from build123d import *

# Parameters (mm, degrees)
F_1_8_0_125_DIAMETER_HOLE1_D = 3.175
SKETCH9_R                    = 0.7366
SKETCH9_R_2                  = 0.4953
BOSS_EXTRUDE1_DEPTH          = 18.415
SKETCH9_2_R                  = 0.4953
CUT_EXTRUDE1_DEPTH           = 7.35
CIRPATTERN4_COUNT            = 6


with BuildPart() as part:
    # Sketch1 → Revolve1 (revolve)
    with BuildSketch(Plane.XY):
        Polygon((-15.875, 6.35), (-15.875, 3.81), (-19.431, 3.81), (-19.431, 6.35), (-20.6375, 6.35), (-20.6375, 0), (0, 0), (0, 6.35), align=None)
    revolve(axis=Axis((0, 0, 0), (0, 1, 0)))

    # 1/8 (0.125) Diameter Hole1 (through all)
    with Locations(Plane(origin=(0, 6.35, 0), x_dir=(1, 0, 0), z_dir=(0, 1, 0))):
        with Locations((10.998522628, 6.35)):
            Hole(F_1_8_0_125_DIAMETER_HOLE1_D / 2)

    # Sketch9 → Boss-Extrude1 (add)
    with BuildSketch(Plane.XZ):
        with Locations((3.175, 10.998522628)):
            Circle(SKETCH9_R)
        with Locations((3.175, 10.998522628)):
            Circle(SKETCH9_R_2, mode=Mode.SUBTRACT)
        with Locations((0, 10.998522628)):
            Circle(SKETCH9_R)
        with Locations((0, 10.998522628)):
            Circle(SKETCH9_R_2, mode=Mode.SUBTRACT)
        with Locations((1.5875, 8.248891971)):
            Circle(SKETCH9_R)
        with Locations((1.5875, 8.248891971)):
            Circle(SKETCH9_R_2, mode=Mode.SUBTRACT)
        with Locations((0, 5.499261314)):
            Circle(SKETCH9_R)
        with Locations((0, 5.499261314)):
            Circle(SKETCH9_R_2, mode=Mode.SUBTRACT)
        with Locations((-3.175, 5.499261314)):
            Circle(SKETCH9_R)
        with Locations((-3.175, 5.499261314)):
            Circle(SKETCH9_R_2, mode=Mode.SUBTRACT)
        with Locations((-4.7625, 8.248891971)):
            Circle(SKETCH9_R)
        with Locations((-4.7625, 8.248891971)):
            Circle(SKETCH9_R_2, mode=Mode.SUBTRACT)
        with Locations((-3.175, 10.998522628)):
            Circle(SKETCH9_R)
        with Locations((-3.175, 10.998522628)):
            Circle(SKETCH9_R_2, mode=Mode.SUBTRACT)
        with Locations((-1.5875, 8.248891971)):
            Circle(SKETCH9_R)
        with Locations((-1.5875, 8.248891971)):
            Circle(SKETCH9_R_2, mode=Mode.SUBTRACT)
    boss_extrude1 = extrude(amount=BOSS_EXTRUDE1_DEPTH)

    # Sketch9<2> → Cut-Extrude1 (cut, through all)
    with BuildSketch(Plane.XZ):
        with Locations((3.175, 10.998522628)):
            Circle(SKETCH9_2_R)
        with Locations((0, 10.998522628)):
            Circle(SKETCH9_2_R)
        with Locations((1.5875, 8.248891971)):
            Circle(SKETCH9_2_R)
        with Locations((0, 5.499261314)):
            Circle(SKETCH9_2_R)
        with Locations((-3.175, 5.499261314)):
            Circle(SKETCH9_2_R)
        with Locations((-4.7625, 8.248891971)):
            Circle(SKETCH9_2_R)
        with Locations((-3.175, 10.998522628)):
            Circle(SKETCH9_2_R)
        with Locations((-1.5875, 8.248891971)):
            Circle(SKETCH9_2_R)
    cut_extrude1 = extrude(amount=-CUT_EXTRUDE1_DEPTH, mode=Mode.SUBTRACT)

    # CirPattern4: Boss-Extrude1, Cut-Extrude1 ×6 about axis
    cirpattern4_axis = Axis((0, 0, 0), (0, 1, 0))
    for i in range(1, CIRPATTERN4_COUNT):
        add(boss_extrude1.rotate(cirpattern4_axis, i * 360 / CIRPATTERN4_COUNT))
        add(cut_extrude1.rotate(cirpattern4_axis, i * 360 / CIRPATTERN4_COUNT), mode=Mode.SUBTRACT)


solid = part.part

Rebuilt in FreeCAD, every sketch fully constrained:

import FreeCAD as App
import Part
import Sketcher

V = App.Vector
Q = App.Units.Quantity

doc = App.newDocument("Part")
body = doc.addObject("PartDesign::Body", "Body")

# Sketch on XY plane
sketch1 = doc.addObject("Sketcher::SketchObject", "Sketch")
body.addObject(sketch1)
sketch1.AttachmentSupport = (doc.XY_Plane, [""])
sketch1.MapMode = "FlatFace"
sketch1.addGeometry([
    Part.LineSegment(V(-15.9, 6.3, 0), V(-15.9, 3.8, 0)),  # 0
    Part.LineSegment(V(-15.9, 3.8, 0), V(-19.4, 3.8, 0)),  # 1
    Part.LineSegment(V(-19.4, 3.8, 0), V(-19.4, 6.3, 0)),  # 2
    Part.LineSegment(V(-19.4, 6.3, 0), V(-20.6, 6.3, 0)),  # 3
    Part.LineSegment(V(-20.6, 6.3, 0), V(-20.6, 0, 0)),  # 4
    Part.LineSegment(V(-20.6, 0, 0), V(0, 0, 0)),  # 5
    Part.LineSegment(V(0, 0, 0), V(0, 6.3, 0)),  # 6
    Part.LineSegment(V(0, 6.3, 0), V(-15.9, 6.3, 0)),  # 7
], False)
sketch1.addConstraint([
    Sketcher.Constraint("Coincident", 0, 2, 1, 1),
    Sketcher.Constraint("Coincident", 1, 2, 2, 1),
    Sketcher.Constraint("Coincident", 2, 2, 3, 1),
    Sketcher.Constraint("Coincident", 3, 2, 4, 1),
    Sketcher.Constraint("Coincident", 4, 2, 5, 1),
    Sketcher.Constraint("Coincident", 5, 2, 6, 1),
    Sketcher.Constraint("Coincident", 6, 2, 7, 1),
    Sketcher.Constraint("Coincident", 7, 2, 0, 1),
    Sketcher.Constraint("Vertical", 0),
    Sketcher.Constraint("Horizontal", 1),
    Sketcher.Constraint("Vertical", 2),
    Sketcher.Constraint("Horizontal", 3),
    Sketcher.Constraint("Vertical", 4),
    Sketcher.Constraint("Horizontal", 5),
    Sketcher.Constraint("Vertical", 6),
    Sketcher.Constraint("Horizontal", 7),
    Sketcher.Constraint("Coincident", 5, 2, -1, 1),
    Sketcher.Constraint("Horizontal", 3, 2, 6, 2),
    Sketcher.Constraint("DistanceY", 0, 2, 0, 1, Q("0.1 in")),
    Sketcher.Constraint("DistanceX", 1, 2, 1, 1, Q("0.14 in")),
    Sketcher.Constraint("DistanceY", 4, 2, 4, 1, Q("0.25 in")),
    Sketcher.Constraint("DistanceX", 5, 1, 5, 2, Q("0.8125 in")),
    Sketcher.Constraint("DistanceX", 7, 2, 7, 1, Q("0.625 in")),
])
revolution = doc.addObject("PartDesign::Revolution", "Revolution")
body.addObject(revolution)
revolution.Profile = sketch1
revolution.ReferenceAxis = (sketch1, ["V_Axis"])
revolution.Angle = 360

# Sketch on XZ plane
sketch2 = doc.addObject("Sketcher::SketchObject", "Sketch001")
body.addObject(sketch2)
sketch2.AttachmentSupport = (doc.XZ_Plane, [""])
sketch2.MapMode = "FlatFace"
sketch2.AttachmentOffset = App.Placement(V(0, 0, -0.25 * 25.4), App.Rotation())
sketch2.addGeometry(Part.Circle(V(11, -6.3, 0), V(0, 0, 1), 1.6), False)
sketch2.addConstraint([
    Sketcher.Constraint("Diameter", 0, Q("0.125 in")),
    Sketcher.Constraint("DistanceY", 0, 3, -1, 1, Q("0.25 in")),
    Sketcher.Constraint("DistanceX", -1, 1, 0, 3, Q("10.998523 mm")),
])
doc.recompute()
hole = doc.addObject("PartDesign::Hole", "Hole")
body.addObject(hole)
hole.Profile = sketch2
hole.ThreadType = "None"
hole.Diameter = Q("0.125 in")
hole.DepthType = "ThroughAll"
hole.Reversed = True

# Sketch on XZ plane
sketch3 = doc.addObject("Sketcher::SketchObject", "Sketch002")
body.addObject(sketch3)
sketch3.AttachmentSupport = (doc.XZ_Plane, [""])
sketch3.MapMode = "FlatFace"
sketch3.addGeometry([
    Part.Circle(V(3.17, 11, 0), V(0, 0, 1), 0.74),  # 0
    Part.Circle(V(3.17, 11, 0), V(0, 0, 1), 0.5),  # 1
    Part.Circle(V(0, 11, 0), V(0, 0, 1), 0.74),  # 2
    Part.Circle(V(0, 11, 0), V(0, 0, 1), 0.5),  # 3
    Part.Circle(V(1.59, 8.25, 0), V(0, 0, 1), 0.74),  # 4
    Part.Circle(V(1.59, 8.25, 0), V(0, 0, 1), 0.5),  # 5
    Part.Circle(V(0, 5.5, 0), V(0, 0, 1), 0.74),  # 6
    Part.Circle(V(0, 5.5, 0), V(0, 0, 1), 0.5),  # 7
    Part.Circle(V(-3.17, 5.5, 0), V(0, 0, 1), 0.74),  # 8
    Part.Circle(V(-3.17, 5.5, 0), V(0, 0, 1), 0.5),  # 9
    Part.Circle(V(-4.76, 8.25, 0), V(0, 0, 1), 0.74),  # 10
    Part.Circle(V(-4.76, 8.25, 0), V(0, 0, 1), 0.5),  # 11
    Part.Circle(V(-3.17, 11, 0), V(0, 0, 1), 0.74),  # 12
    Part.Circle(V(-3.17, 11, 0), V(0, 0, 1), 0.5),  # 13
    Part.Circle(V(-1.59, 8.25, 0), V(0, 0, 1), 0.74),  # 14
    Part.Circle(V(-1.59, 8.25, 0), V(0, 0, 1), 0.5),  # 15
], False)
sketch3.addConstraint([
    Sketcher.Constraint("Coincident", 1, 3, 0, 3),
    Sketcher.Constraint("Coincident", 3, 3, 2, 3),
    Sketcher.Constraint("Coincident", 5, 3, 4, 3),
    Sketcher.Constraint("Coincident", 7, 3, 6, 3),
    Sketcher.Constraint("Coincident", 9, 3, 8, 3),
    Sketcher.Constraint("Coincident", 11, 3, 10, 3),
    Sketcher.Constraint("Coincident", 13, 3, 12, 3),
    Sketcher.Constraint("Coincident", 15, 3, 14, 3),
    Sketcher.Constraint("Equal", 0, 2),
    Sketcher.Constraint("Equal", 1, 3),
    Sketcher.Constraint("Equal", 2, 4),
    Sketcher.Constraint("Equal", 3, 5),
    Sketcher.Constraint("Equal", 4, 6),
    Sketcher.Constraint("Equal", 5, 7),
    Sketcher.Constraint("Equal", 6, 8),
    Sketcher.Constraint("Equal", 7, 9),
    Sketcher.Constraint("Equal", 8, 10),
    Sketcher.Constraint("Equal", 9, 11),
    Sketcher.Constraint("Equal", 10, 12),
    Sketcher.Constraint("Equal", 11, 13),
    Sketcher.Constraint("Equal", 12, 14),
    Sketcher.Constraint("Equal", 13, 15),
    Sketcher.Constraint("Symmetric", 0, 3, 12, 3, -2),
    Sketcher.Constraint("Symmetric", 4, 3, 14, 3, -2),
    Sketcher.Constraint("PointOnObject", 2, 3, -2),
    Sketcher.Constraint("PointOnObject", 6, 3, -2),
    Sketcher.Constraint("Horizontal", 1, 3, 2, 3),
    Sketcher.Constraint("Horizontal", 7, 3, 8, 3),
    Sketcher.Constraint("Horizontal", 5, 3, 10, 3),
    Sketcher.Constraint("Vertical", 9, 3, 12, 3),
    Sketcher.Constraint("Diameter", 0, Q("0.058 in")),
    Sketcher.Constraint("Diameter", 1, Q("0.039 in")),
    Sketcher.Constraint("DistanceX", -1, 1, 0, 3, Q("0.125 in")),
    Sketcher.Constraint("DistanceX", -1, 1, 4, 3, Q("0.0625 in")),
    Sketcher.Constraint("DistanceX", 10, 3, -1, 1, Q("0.1875 in")),
    Sketcher.Constraint("DistanceY", -1, 1, 4, 3, Q("8.248892 mm")),
    Sketcher.Constraint("DistanceY", -1, 1, 6, 3, Q("5.499261 mm")),
    Sketcher.Constraint("DistanceY", 4, 3, 0, 3, Q("2.749631 mm")),
])
pad1 = doc.addObject("PartDesign::Pad", "Pad")
body.addObject(pad1)
pad1.Profile = sketch3
pad1.Length = Q("0.725 in")

# Sketch on XZ plane
sketch4 = doc.addObject("Sketcher::SketchObject", "Sketch003")
body.addObject(sketch4)
sketch4.AttachmentSupport = (doc.XZ_Plane, [""])
sketch4.MapMode = "FlatFace"
sketch4.addGeometry([
    Part.Circle(V(3.17, 11, 0), V(0, 0, 1), 0.5),  # 0
    Part.Circle(V(0, 11, 0), V(0, 0, 1), 0.5),  # 1
    Part.Circle(V(1.59, 8.25, 0), V(0, 0, 1), 0.5),  # 2
    Part.Circle(V(0, 5.5, 0), V(0, 0, 1), 0.5),  # 3
    Part.Circle(V(-3.17, 5.5, 0), V(0, 0, 1), 0.5),  # 4
    Part.Circle(V(-4.76, 8.25, 0), V(0, 0, 1), 0.5),  # 5
    Part.Circle(V(-3.17, 11, 0), V(0, 0, 1), 0.5),  # 6
    Part.Circle(V(-1.59, 8.25, 0), V(0, 0, 1), 0.5),  # 7
], False)
sketch4.addConstraint([
    Sketcher.Constraint("Equal", 0, 1),
    Sketcher.Constraint("Equal", 1, 2),
    Sketcher.Constraint("Equal", 2, 3),
    Sketcher.Constraint("Equal", 3, 4),
    Sketcher.Constraint("Equal", 4, 5),
    Sketcher.Constraint("Equal", 5, 6),
    Sketcher.Constraint("Equal", 6, 7),
    Sketcher.Constraint("Symmetric", 0, 3, 6, 3, -2),
    Sketcher.Constraint("Symmetric", 2, 3, 7, 3, -2),
    Sketcher.Constraint("PointOnObject", 1, 3, -2),
    Sketcher.Constraint("PointOnObject", 3, 3, -2),
    Sketcher.Constraint("Horizontal", 0, 3, 1, 3),
    Sketcher.Constraint("Horizontal", 3, 3, 4, 3),
    Sketcher.Constraint("Horizontal", 2, 3, 5, 3),
    Sketcher.Constraint("Vertical", 4, 3, 6, 3),
    Sketcher.Constraint("Diameter", 0, Q("0.039 in")),
    Sketcher.Constraint("DistanceX", 4, 3, 0, 3, Q("0.25 in")),
    Sketcher.Constraint("DistanceX", 5, 3, 2, 3, Q("0.25 in")),
    Sketcher.Constraint("DistanceX", -1, 1, 2, 3, Q("0.0625 in")),
    Sketcher.Constraint("DistanceY", -1, 1, 2, 3, Q("8.248892 mm")),
    Sketcher.Constraint("DistanceY", -1, 1, 3, 3, Q("5.499261 mm")),
    Sketcher.Constraint("DistanceY", 2, 3, 0, 3, Q("2.749631 mm")),
])
pocket1 = doc.addObject("PartDesign::Pocket", "Pocket")
body.addObject(pocket1)
pocket1.Profile = sketch4
pocket1.Type = "ThroughAll"
doc.recompute()

polarpattern = doc.addObject("PartDesign::PolarPattern", "PolarPattern")
body.addObject(polarpattern)
polarpattern.Originals = [pad1, pocket1]
polarpattern.Axis = (doc.Y_Axis, [""])
polarpattern.Angle = 360
polarpattern.Occurrences = 6
body.Tip = polarpattern

doc.recompute()
